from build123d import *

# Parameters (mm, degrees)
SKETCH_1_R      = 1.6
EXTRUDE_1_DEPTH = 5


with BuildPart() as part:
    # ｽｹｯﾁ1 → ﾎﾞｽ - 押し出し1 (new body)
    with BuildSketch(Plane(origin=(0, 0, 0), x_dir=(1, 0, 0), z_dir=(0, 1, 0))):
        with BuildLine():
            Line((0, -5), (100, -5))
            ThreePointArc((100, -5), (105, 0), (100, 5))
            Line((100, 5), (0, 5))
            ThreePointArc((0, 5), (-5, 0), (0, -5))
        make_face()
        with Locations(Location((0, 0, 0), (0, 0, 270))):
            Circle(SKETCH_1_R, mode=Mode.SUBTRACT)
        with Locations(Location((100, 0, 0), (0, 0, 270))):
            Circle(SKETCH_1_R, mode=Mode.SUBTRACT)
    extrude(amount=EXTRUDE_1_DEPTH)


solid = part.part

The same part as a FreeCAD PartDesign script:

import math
import FreeCAD as App
import Part
import Sketcher
from FreeCAD import Vector
Q = App.Units.Quantity

doc = App.newDocument("Part")
body = doc.addObject("PartDesign::Body", "Body")

sketch1 = body.newObject("Sketcher::SketchObject", "Sketch")
sketch1.AttachmentSupport = (doc.getObject("XZ_Plane"), [""])
sketch1.MapMode = "FlatFace"
sketch1.addGeometry(Part.LineSegment(Vector(0, 5, 0), Vector(100, 5, 0)), False)
sketch1.addGeometry(Part.ArcOfCircle(Part.Circle(Vector(100, 0, 0), Vector(0, 0, 1), 5), math.radians(-90), math.radians(90)), False)
sketch1.addGeometry(Part.LineSegment(Vector(100, -5, 0), Vector(0, -5, 0)), False)
sketch1.addGeometry(Part.ArcOfCircle(Part.Circle(Vector(0, 0, 0), Vector(0, 0, 1), 5), math.radians(90), math.radians(270)), False)
sketch1.addGeometry(Part.Circle(Vector(0, 0, 0), Vector(0, 0, 1), 1.6), False)
sketch1.addGeometry(Part.Circle(Vector(100, 0, 0), Vector(0, 0, 1), 1.6), False)
sketch1.addConstraint(Sketcher.Constraint("Tangent", 0, 2, 1, 2))
sketch1.addConstraint(Sketcher.Constraint("Tangent", 1, 1, 2, 1))
sketch1.addConstraint(Sketcher.Constraint("Tangent", 2, 2, 3, 2))
sketch1.addConstraint(Sketcher.Constraint("Tangent", 3, 1, 0, 1))
sketch1.addConstraint(Sketcher.Constraint("Horizontal", 0))
sketch1.addConstraint(Sketcher.Constraint("Horizontal", 2))
sketch1.addConstraint(Sketcher.Constraint("Coincident", 3, 3, -1, 1))
sketch1.addConstraint(Sketcher.Constraint("Coincident", 4, 3, -1, 1))
sketch1.addConstraint(Sketcher.Constraint("Coincident", 5, 3, 1, 3))
sketch1.addConstraint(Sketcher.Constraint("Equal", 4, 5))
sketch1.addConstraint(Sketcher.Constraint("Radius", 1, Q("5 mm")))
sketch1.addConstraint(Sketcher.Constraint("Diameter", 4, Q("3.2 mm")))
sketch1.addConstraint(Sketcher.Constraint("DistanceX", 0, 1, 0, 2, Q("100 mm")))
pad1 = body.newObject("PartDesign::Pad", "Pad")
pad1.Profile = sketch1
pad1.Length = 5
pad1.Reversed = True

doc.recompute()
